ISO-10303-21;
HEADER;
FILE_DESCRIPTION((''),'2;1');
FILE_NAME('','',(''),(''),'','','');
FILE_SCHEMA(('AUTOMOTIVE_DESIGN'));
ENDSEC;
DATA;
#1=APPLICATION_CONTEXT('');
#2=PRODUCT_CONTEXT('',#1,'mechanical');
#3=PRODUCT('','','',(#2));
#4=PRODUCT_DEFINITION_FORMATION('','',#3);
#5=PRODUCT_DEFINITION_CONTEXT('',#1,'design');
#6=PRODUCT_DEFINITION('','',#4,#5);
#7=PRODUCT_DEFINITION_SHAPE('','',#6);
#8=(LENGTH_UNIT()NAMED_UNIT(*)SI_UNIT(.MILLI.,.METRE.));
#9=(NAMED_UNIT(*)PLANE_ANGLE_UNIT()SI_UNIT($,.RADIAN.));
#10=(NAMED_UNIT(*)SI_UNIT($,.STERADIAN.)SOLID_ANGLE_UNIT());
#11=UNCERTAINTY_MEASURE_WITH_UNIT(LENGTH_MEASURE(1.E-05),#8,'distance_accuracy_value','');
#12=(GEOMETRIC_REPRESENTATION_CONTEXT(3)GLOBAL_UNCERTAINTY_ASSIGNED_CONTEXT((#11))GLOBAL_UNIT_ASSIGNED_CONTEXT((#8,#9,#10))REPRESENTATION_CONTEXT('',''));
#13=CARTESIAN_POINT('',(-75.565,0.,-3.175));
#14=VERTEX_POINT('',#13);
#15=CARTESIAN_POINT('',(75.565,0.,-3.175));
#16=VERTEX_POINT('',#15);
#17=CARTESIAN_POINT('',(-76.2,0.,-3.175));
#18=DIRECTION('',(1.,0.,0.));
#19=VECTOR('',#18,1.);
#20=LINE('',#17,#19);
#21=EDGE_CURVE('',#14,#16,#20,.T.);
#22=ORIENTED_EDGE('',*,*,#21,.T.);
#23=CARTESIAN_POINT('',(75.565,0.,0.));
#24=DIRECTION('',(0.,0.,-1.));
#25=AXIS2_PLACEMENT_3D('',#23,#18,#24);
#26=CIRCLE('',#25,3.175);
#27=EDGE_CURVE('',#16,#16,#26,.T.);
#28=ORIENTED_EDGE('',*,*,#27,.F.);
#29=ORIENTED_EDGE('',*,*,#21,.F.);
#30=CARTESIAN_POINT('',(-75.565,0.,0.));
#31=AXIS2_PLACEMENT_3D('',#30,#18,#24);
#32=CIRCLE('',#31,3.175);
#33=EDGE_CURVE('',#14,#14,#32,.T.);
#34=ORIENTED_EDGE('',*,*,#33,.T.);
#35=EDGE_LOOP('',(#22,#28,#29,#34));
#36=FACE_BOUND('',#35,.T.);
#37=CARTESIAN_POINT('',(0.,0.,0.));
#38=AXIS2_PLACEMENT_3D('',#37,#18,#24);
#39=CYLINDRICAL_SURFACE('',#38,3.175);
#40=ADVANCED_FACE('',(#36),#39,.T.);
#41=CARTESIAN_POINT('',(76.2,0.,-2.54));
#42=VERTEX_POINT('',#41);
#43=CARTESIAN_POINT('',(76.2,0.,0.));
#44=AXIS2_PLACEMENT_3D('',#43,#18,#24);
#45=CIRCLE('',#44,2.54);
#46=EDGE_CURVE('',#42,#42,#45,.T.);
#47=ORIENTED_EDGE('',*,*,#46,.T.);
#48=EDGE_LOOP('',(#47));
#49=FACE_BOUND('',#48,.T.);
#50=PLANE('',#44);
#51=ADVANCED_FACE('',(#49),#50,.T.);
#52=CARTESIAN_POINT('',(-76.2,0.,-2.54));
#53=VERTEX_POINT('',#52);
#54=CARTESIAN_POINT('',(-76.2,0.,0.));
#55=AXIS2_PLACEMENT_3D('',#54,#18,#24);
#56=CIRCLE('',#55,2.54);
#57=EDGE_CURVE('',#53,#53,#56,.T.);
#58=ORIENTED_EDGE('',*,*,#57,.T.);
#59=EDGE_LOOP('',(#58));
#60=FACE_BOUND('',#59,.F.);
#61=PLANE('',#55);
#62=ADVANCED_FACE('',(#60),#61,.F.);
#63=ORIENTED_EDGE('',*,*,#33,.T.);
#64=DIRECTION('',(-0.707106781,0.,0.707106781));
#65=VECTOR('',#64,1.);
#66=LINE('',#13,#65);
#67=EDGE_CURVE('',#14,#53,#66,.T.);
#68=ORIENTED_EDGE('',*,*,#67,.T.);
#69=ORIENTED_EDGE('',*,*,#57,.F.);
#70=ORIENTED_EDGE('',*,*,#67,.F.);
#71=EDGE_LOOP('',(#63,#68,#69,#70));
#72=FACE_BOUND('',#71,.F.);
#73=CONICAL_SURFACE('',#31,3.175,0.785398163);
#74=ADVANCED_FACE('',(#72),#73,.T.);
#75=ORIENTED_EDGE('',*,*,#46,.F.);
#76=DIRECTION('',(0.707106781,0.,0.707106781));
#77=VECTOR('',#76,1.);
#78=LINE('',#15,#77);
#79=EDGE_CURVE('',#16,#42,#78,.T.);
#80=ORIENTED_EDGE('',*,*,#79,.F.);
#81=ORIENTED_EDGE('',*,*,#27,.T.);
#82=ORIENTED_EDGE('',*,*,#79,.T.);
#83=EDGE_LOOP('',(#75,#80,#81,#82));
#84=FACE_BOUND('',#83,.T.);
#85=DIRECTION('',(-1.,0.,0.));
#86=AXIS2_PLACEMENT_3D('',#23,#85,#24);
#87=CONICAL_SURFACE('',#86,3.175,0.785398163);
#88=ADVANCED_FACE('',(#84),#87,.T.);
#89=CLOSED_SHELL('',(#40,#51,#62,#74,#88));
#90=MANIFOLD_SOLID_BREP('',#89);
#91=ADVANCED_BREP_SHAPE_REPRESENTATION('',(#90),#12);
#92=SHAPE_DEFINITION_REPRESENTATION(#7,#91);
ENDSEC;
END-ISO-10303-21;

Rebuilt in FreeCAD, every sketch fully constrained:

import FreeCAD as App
import Part
import Sketcher

V = App.Vector
Q = App.Units.Quantity


def edges_at(feature, points):
    """Names of the edges that pass closest to the given points."""
    edges = feature.Shape.Edges
    near = lambda p: min(range(len(edges)), key=lambda i: edges[i].distToShape(Part.Vertex(*p))[0])
    return sorted({f"Edge{near(p) + 1}" for p in points})

doc = App.newDocument("Part")
body = doc.addObject("PartDesign::Body", "Body")

sketch1 = body.newObject("Sketcher::SketchObject", "Sketch")
sketch1.AttachmentSupport = (doc.getObject("YZ_Plane"), [""])
sketch1.MapMode = "FlatFace"
sketch1.addGeometry(Part.Circle(V(0, 0, 0), V(0, 0, 1), 3.2), False)
sketch1.addConstraint([
    Sketcher.Constraint("Coincident", 0, 3, -1, 1),
    Sketcher.Constraint("Diameter", 0, Q("0.25 in")),
])
pad1 = body.newObject("PartDesign::Pad", "Pad")
pad1.Profile = sketch1
pad1.Type = "TwoLengths"
pad1.Length = Q("3 in")
pad1.Length2 = Q("3 in")
doc.recompute()

chamfer = body.newObject("PartDesign::Chamfer", "Chamfer")
chamfer.Base = (pad1, edges_at(pad1, [(-76.2, 0, 3.175), (76.2, 0, 3.175)]))
chamfer.Size = Q("0.025 in")

doc.recompute()
